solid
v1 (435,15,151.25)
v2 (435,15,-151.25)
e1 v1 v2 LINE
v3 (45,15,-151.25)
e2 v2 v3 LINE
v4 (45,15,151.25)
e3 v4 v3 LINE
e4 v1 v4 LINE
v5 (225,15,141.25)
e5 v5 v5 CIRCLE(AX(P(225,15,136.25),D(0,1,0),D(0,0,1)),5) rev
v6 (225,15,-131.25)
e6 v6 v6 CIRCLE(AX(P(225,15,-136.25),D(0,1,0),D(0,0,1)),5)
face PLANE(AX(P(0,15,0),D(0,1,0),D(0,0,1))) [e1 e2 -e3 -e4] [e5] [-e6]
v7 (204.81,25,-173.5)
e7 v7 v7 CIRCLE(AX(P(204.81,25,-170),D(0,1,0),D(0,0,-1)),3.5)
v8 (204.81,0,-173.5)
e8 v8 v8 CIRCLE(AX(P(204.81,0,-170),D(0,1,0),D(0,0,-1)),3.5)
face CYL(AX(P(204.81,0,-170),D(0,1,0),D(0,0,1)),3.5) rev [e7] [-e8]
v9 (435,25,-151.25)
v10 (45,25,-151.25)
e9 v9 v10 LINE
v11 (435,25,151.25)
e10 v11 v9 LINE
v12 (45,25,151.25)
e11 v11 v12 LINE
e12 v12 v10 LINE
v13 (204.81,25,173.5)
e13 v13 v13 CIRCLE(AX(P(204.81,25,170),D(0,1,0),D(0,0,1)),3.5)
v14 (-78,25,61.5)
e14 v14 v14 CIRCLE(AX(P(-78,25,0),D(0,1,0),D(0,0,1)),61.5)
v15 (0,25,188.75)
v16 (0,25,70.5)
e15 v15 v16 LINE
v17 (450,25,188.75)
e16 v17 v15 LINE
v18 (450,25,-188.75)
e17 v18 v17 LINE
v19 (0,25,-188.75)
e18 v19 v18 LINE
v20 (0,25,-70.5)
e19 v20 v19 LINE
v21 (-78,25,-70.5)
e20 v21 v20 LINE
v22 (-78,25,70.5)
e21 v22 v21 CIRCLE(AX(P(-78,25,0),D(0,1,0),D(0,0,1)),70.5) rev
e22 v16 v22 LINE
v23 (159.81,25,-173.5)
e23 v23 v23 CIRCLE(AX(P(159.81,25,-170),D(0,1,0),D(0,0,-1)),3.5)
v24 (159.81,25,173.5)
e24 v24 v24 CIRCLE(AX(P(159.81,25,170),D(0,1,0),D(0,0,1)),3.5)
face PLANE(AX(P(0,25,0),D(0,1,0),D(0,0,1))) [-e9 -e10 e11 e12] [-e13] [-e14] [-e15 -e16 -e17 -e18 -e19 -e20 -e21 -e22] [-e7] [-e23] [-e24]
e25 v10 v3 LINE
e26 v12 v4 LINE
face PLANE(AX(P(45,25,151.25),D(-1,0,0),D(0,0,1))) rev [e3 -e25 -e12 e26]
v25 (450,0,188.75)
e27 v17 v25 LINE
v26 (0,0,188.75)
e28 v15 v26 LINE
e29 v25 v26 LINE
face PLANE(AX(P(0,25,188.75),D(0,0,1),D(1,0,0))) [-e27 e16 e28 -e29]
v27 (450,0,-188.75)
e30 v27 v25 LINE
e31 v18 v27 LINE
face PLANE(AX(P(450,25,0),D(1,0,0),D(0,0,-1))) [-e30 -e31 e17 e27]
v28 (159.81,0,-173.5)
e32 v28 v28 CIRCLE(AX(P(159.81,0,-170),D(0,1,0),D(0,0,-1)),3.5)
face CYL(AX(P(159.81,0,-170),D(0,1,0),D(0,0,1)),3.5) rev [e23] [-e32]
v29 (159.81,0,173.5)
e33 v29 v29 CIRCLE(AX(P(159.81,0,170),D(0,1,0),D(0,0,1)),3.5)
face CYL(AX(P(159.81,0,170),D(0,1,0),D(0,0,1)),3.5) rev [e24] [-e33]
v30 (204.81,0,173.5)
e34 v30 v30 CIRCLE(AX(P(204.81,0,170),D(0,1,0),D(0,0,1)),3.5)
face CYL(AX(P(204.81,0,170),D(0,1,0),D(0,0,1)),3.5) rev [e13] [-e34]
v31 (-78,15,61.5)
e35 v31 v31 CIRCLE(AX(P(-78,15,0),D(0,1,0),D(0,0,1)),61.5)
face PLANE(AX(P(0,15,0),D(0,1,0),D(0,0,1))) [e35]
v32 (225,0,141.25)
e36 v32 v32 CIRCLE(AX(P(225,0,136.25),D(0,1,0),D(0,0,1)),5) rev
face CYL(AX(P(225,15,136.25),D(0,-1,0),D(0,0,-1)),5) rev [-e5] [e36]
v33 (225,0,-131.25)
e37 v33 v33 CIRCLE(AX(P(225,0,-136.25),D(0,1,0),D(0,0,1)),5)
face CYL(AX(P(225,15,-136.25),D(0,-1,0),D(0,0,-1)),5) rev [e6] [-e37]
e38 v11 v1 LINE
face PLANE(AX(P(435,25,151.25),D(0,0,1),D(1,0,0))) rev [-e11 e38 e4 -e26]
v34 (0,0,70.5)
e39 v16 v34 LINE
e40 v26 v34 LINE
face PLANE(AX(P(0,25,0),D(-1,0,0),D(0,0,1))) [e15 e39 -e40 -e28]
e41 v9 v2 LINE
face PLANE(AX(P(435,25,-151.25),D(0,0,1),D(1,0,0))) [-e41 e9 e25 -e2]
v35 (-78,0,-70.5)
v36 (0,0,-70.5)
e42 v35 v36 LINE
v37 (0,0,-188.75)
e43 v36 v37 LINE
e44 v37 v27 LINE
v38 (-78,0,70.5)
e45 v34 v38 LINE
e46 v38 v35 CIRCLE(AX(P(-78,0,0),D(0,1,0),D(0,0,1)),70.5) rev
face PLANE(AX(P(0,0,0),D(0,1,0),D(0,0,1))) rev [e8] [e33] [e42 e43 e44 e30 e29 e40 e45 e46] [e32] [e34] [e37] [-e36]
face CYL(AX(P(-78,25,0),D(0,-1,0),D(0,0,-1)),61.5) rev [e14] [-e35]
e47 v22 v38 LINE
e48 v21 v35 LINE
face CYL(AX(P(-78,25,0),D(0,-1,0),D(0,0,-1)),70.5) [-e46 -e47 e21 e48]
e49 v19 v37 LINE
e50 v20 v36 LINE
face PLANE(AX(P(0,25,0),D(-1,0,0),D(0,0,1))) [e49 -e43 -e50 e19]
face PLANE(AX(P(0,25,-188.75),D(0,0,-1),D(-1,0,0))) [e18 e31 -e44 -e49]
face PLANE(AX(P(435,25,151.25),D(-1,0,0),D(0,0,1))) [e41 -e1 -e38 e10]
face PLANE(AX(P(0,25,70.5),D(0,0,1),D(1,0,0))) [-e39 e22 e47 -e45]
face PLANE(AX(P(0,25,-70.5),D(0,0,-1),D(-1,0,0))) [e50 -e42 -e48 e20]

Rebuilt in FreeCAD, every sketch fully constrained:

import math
import FreeCAD as App
import Part
import Sketcher

V = App.Vector
Q = App.Units.Quantity


def add_polygon(sketch, points):
    """Adds a closed chain of lines whose ends are joined by coincident constraints."""
    first, n = sketch.GeometryCount, len(points)
    for a, b in zip(points, points[1:] + points[:1]):
        sketch.addGeometry(Part.LineSegment(App.Vector(*a, 0), App.Vector(*b, 0)), False)
    for i in range(n):
        sketch.addConstraint(Sketcher.Constraint("Coincident", first + i, 2, first + (i + 1) % n, 1))

doc = App.newDocument("Part")
params = doc.addObject("Spreadsheet::Sheet", "Params")
for row, (alias, value) in enumerate([
    ("sketch1_diameter", "123 mm"),
    ("sketch1_radius", "70.5 mm"),
    ("sketch1_width", "450 mm"),
    ("sketch1_width2", "78 mm"),
    ("sketch1_width3", "390 mm"),
    ("pad1_length", "25 mm"),
    ("sketch2_diameter", "10 mm"),
    ("sketch2_diameter2", "123 mm"),
    ("sketch2_width", "390 mm"),
    ("sketch2_height", "302.5 mm"),
    ("pad2_length", "15 mm"),
    ("sketch3_diameter", "7 mm"),
], start=1):
    params.set(f"A{row}", alias)
    params.set(f"B{row}", "=" + value)
    params.setAlias(f"B{row}", alias)

body = doc.addObject("PartDesign::Body", "Body")

# Sketch on XZ plane
sketch1 = doc.addObject("Sketcher::SketchObject", "Sketch")
body.addObject(sketch1)
sketch1.AttachmentSupport = (doc.XZ_Plane, [""])
sketch1.MapMode = "FlatFace"
sketch1.addGeometry(Part.LineSegment(V(450, -189, 0), V(0, -189, 0)), False)  # 0
sketch1.addGeometry(Part.LineSegment(V(0, -189, 0), V(0, -70, 0)), False)  # 1
sketch1.addGeometry(Part.LineSegment(V(0, -70, 0), V(-78, -70, 0)), False)  # 2
sketch1.addGeometry(Part.ArcOfCircle(Part.Circle(V(-78, 0, 0), V(0, 0, 1), 70), math.radians(90), math.radians(270)), False)  # 3
sketch1.addGeometry(Part.LineSegment(V(-78, 70, 0), V(0, 70, 0)), False)  # 4
sketch1.addGeometry(Part.LineSegment(V(0, 70, 0), V(0, 189, 0)), False)  # 5
sketch1.addGeometry(Part.LineSegment(V(0, 189, 0), V(450, 189, 0)), False)  # 6
sketch1.addGeometry(Part.LineSegment(V(450, 189, 0), V(450, -189, 0)), False)  # 7
add_polygon(sketch1, [(45, 151), (45, -151), (435, -151), (435, 151)])  # lines 8-11
sketch1.addGeometry(Part.Circle(V(-78, 0, 0), V(0, 0, 1), 62), False)  # 12
sketch1.addConstraint(Sketcher.Constraint("Coincident", 0, 2, 1, 1))
sketch1.addConstraint(Sketcher.Constraint("Coincident", 1, 2, 2, 1))
sketch1.addConstraint(Sketcher.Constraint("Tangent", 2, 2, 3, 2))
sketch1.addConstraint(Sketcher.Constraint("Tangent", 3, 1, 4, 1))
sketch1.addConstraint(Sketcher.Constraint("Coincident", 4, 2, 5, 1))
sketch1.addConstraint(Sketcher.Constraint("Coincident", 5, 2, 6, 1))
sketch1.addConstraint(Sketcher.Constraint("Coincident", 6, 2, 7, 1))
sketch1.addConstraint(Sketcher.Constraint("Coincident", 7, 2, 0, 1))
sketch1.addConstraint(Sketcher.Constraint("Horizontal", 0))
sketch1.addConstraint(Sketcher.Constraint("Vertical", 1))
sketch1.addConstraint(Sketcher.Constraint("Horizontal", 2))
sketch1.addConstraint(Sketcher.Constraint("Horizontal", 4))
sketch1.addConstraint(Sketcher.Constraint("Vertical", 5))
sketch1.addConstraint(Sketcher.Constraint("Horizontal", 6))
sketch1.addConstraint(Sketcher.Constraint("Vertical", 7))
sketch1.addConstraint(Sketcher.Constraint("Vertical", 8))
sketch1.addConstraint(Sketcher.Constraint("Horizontal", 9))
sketch1.addConstraint(Sketcher.Constraint("Vertical", 10))
sketch1.addConstraint(Sketcher.Constraint("Horizontal", 11))
sketch1.addConstraint(Sketcher.Constraint("Coincident", 12, 3, 3, 3))
sketch1.addConstraint(Sketcher.Constraint("Symmetric", 1, 2, 4, 2, -1, 1))
sketch1.addConstraint(Sketcher.Constraint("Symmetric", 0, 2, 5, 2, -1))
sketch1.addConstraint(Sketcher.Constraint("Diameter", 12, Q("123 mm")))
sketch1.addConstraint(Sketcher.Constraint("Radius", 3, Q("70.5 mm")))
sketch1.addConstraint(Sketcher.Constraint("DistanceX", 0, 2, 0, 1, Q("450 mm")))
sketch1.addConstraint(Sketcher.Constraint("DistanceX", 2, 2, 2, 1, Q("78 mm")))
sketch1.addConstraint(Sketcher.Constraint("DistanceX", 9, 1, 9, 2, Q("390 mm")))
sketch1.addConstraint(Sketcher.Constraint("DistanceY", 7, 2, 7, 1, Q("377.5 mm")))
sketch1.addConstraint(Sketcher.Constraint("DistanceY", 8, 2, 8, 1, Q("302.5 mm")))
sketch1.addConstraint(Sketcher.Constraint("DistanceX", -1, 1, 8, 2, Q("45 mm")))
sketch1.addConstraint(Sketcher.Constraint("DistanceY", 9, 2, 6, 2, Q("340 mm")))
sketch1.setExpression("Constraints[26]", "Params.sketch1_diameter")
sketch1.setExpression("Constraints[27]", "Params.sketch1_radius")
sketch1.setExpression("Constraints[28]", "Params.sketch1_width")
sketch1.setExpression("Constraints[29]", "Params.sketch1_width2")
sketch1.setExpression("Constraints[30]", "Params.sketch1_width3")
pad1 = doc.addObject("PartDesign::Pad", "Pad")
body.addObject(pad1)
pad1.Profile = sketch1
pad1.setExpression("Length", "Params.pad1_length")
pad1.Reversed = True

# Sketch on XZ plane
sketch2 = doc.addObject("Sketcher::SketchObject", "Sketch001")
body.addObject(sketch2)
sketch2.AttachmentSupport = (doc.XZ_Plane, [""])
sketch2.MapMode = "FlatFace"
add_polygon(sketch2, [(45, -151), (45, 151), (435, 151), (435, -151)])  # lines 0-3
sketch2.addGeometry(Part.Circle(V(225, 136, 0), V(0, 0, 1), 5), False)  # 4
sketch2.addGeometry(Part.Circle(V(225, -136, 0), V(0, 0, 1), 5), False)  # 5
sketch2.addGeometry(Part.Circle(V(-78, 0, 0), V(0, 0, 1), 62), False)  # 6
sketch2.addConstraint(Sketcher.Constraint("Vertical", 0))
sketch2.addConstraint(Sketcher.Constraint("Horizontal", 1))
sketch2.addConstraint(Sketcher.Constraint("Vertical", 2))
sketch2.addConstraint(Sketcher.Constraint("Horizontal", 3))
sketch2.addConstraint(Sketcher.Constraint("Equal", 4, 5))
sketch2.addConstraint(Sketcher.Constraint("Symmetric", 4, 3, 5, 3, -1))
sketch2.addConstraint(Sketcher.Constraint("PointOnObject", 6, 3, -1))
sketch2.addConstraint(Sketcher.Constraint("Diameter", 4, Q("10 mm")))
sketch2.addConstraint(Sketcher.Constraint("Diameter", 6, Q("123 mm")))
sketch2.addConstraint(Sketcher.Constraint("DistanceX", 1, 1, 1, 2, Q("390 mm")))
sketch2.addConstraint(Sketcher.Constraint("DistanceY", 0, 1, 0, 2, Q("302.5 mm")))
sketch2.addConstraint(Sketcher.Constraint("DistanceX", -1, 1, 4, 3, Q("225 mm")))
sketch2.addConstraint(Sketcher.Constraint("DistanceX", 6, 3, -1, 1, Q("78 mm")))
sketch2.addConstraint(Sketcher.Constraint("DistanceX", -1, 1, 0, 2, Q("45 mm")))
sketch2.addConstraint(Sketcher.Constraint("DistanceY", 4, 3, 0, 2, Q("15 mm")))
sketch2.addConstraint(Sketcher.Constraint("DistanceY", 2, 2, 5, 3, Q("15 mm")))
sketch2.setExpression("Constraints[11]", "Params.sketch2_diameter")
sketch2.setExpression("Constraints[12]", "Params.sketch2_diameter2")
sketch2.setExpression("Constraints[13]", "Params.sketch2_width")
sketch2.setExpression("Constraints[14]", "Params.sketch2_height")
pad2 = doc.addObject("PartDesign::Pad", "Pad001")
body.addObject(pad2)
pad2.Profile = sketch2
pad2.setExpression("Length", "Params.pad2_length")
pad2.Reversed = True

# Sketch on XZ plane
sketch3 = doc.addObject("Sketcher::SketchObject", "Sketch002")
body.addObject(sketch3)
sketch3.AttachmentSupport = (doc.XZ_Plane, [""])
sketch3.MapMode = "FlatFace"
sketch3.AttachmentOffset = App.Placement(V(0, 0, -25), App.Rotation())
sketch3.addGeometry(Part.Circle(V(159.8, 170, 0), V(0, 0, 1), 3.5), False)
sketch3.addGeometry(Part.Circle(V(204.8, 170, 0), V(0, 0, 1), 3.5), False)
sketch3.addGeometry(Part.Circle(V(204.8, -170, 0), V(0, 0, 1), 3.5), False)
sketch3.addGeometry(Part.Circle(V(159.8, -170, 0), V(0, 0, 1), 3.5), False)
sketch3.addConstraint(Sketcher.Constraint("Equal", 0, 1))
sketch3.addConstraint(Sketcher.Constraint("Equal", 1, 2))
sketch3.addConstraint(Sketcher.Constraint("Equal", 2, 3))
sketch3.addConstraint(Sketcher.Constraint("Symmetric", 1, 3, 2, 3, -1))
sketch3.addConstraint(Sketcher.Constraint("Symmetric", 0, 3, 3, 3, -1))
sketch3.addConstraint(Sketcher.Constraint("Horizontal", 0, 3, 1, 3))
sketch3.addConstraint(Sketcher.Constraint("Diameter", 0, Q("7 mm")))
sketch3.addConstraint(Sketcher.Constraint("DistanceY", -1, 1, 0, 3, Q("170 mm")))
sketch3.addConstraint(Sketcher.Constraint("DistanceX", 0, 3, 1, 3, Q("45 mm")))
sketch3.addConstraint(Sketcher.Constraint("DistanceX", -1, 1, 0, 3, Q("159.81 mm")))
sketch3.setExpression("Constraints[6]", "Params.sketch3_diameter")
pocket1 = doc.addObject("PartDesign::Pocket", "Pocket")
body.addObject(pocket1)
pocket1.Profile = sketch3
pocket1.Type = "ThroughAll"
pocket1.Reversed = True

doc.recompute()
